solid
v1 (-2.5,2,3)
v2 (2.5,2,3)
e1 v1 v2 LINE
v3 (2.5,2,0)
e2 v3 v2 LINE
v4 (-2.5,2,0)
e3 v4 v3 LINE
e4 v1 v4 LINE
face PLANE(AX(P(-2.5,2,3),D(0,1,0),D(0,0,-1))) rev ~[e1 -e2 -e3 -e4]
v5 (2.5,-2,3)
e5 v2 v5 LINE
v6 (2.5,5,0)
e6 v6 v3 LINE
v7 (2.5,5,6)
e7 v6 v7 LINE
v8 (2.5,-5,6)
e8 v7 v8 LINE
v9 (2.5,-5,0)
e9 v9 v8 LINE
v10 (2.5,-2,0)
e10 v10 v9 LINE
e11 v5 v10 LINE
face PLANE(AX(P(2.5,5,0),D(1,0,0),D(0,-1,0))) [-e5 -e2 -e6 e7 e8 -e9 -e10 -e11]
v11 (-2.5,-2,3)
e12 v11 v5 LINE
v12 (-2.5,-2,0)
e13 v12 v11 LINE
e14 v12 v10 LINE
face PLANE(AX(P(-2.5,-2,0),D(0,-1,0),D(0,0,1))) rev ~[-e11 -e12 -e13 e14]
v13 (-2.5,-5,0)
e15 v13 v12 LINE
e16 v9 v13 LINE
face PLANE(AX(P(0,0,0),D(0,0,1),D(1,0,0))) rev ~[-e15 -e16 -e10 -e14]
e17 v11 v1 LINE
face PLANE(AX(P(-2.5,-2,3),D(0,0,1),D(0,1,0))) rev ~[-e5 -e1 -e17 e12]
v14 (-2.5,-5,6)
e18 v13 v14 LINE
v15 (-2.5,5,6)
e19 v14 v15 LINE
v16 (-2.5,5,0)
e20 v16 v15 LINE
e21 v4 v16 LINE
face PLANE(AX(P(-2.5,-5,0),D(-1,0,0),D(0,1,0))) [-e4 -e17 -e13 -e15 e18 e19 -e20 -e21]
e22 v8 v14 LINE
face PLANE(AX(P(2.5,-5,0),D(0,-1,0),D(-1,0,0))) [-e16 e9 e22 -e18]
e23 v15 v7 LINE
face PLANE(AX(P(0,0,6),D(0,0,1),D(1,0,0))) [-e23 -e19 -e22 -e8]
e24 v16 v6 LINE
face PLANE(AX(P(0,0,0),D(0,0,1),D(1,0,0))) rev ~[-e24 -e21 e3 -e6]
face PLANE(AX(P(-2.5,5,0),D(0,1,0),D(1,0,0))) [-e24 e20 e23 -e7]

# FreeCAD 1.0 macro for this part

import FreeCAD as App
import Part
import Sketcher

V = App.Vector


def add_polygon(sketch, points):
    """Adds a closed chain of lines whose ends are joined by coincident constraints."""
    first, n = sketch.GeometryCount, len(points)
    for a, b in zip(points, points[1:] + points[:1]):
        sketch.addGeometry(Part.LineSegment(App.Vector(*a, 0), App.Vector(*b, 0)), False)
    for i in range(n):
        sketch.addConstraint(Sketcher.Constraint("Coincident", first + i, 2, first + (i + 1) % n, 1))

doc = App.newDocument("Part")
body = doc.addObject("PartDesign::Body", "Body")

# Sketch on XY plane
sketch1 = body.newObject("Sketcher::SketchObject", "Sketch")
sketch1.AttachmentSupport = (doc.getObject("XY_Plane"), [""])
sketch1.MapMode = "FlatFace"
add_polygon(sketch1, [(2.5, 5), (-2.5, 5), (-2.5, -5), (2.5, -5)])  # lines 0-3
sketch1.addConstraint([
    Sketcher.Constraint("Horizontal", 0),
    Sketcher.Constraint("Vertical", 1),
    Sketcher.Constraint("Horizontal", 2),
    Sketcher.Constraint("Vertical", 3),
    Sketcher.Constraint("Symmetric", 0, 2, 2, 2, -1, 1),
    Sketcher.Constraint("DistanceX", 0, 2, 0, 1, 5.0),
    Sketcher.Constraint("DistanceY", 1, 2, 1, 1, 10.0),
])
pad1 = body.newObject("PartDesign::Pad", "Pad")
pad1.Profile = sketch1
pad1.Length = 6

# Sketch on YZ plane
sketch2 = body.newObject("Sketcher::SketchObject", "Sketch001")
sketch2.AttachmentSupport = (doc.getObject("YZ_Plane"), [""])
sketch2.MapMode = "FlatFace"
sketch2.AttachmentOffset = App.Placement(V(0, 0, -2.5), App.Rotation())
add_polygon(sketch2, [(2, 3), (2, 0), (-2, 0), (-2, 3)])  # lines 0-3
sketch2.addConstraint([
    Sketcher.Constraint("Vertical", 0),
    Sketcher.Constraint("Horizontal", 1),
    Sketcher.Constraint("Vertical", 2),
    Sketcher.Constraint("Horizontal", 3),
    Sketcher.Constraint("Symmetric", 0, 2, 1, 2, -1, 1),
    Sketcher.Constraint("DistanceX", 1, 2, 1, 1, 4.0),
    Sketcher.Constraint("DistanceY", 0, 2, 0, 1, 3.0),
])
pocket1 = body.newObject("PartDesign::Pocket", "Pocket")
pocket1.Profile = sketch2
pocket1.Length = 6
pocket1.Reversed = True

doc.recompute()
